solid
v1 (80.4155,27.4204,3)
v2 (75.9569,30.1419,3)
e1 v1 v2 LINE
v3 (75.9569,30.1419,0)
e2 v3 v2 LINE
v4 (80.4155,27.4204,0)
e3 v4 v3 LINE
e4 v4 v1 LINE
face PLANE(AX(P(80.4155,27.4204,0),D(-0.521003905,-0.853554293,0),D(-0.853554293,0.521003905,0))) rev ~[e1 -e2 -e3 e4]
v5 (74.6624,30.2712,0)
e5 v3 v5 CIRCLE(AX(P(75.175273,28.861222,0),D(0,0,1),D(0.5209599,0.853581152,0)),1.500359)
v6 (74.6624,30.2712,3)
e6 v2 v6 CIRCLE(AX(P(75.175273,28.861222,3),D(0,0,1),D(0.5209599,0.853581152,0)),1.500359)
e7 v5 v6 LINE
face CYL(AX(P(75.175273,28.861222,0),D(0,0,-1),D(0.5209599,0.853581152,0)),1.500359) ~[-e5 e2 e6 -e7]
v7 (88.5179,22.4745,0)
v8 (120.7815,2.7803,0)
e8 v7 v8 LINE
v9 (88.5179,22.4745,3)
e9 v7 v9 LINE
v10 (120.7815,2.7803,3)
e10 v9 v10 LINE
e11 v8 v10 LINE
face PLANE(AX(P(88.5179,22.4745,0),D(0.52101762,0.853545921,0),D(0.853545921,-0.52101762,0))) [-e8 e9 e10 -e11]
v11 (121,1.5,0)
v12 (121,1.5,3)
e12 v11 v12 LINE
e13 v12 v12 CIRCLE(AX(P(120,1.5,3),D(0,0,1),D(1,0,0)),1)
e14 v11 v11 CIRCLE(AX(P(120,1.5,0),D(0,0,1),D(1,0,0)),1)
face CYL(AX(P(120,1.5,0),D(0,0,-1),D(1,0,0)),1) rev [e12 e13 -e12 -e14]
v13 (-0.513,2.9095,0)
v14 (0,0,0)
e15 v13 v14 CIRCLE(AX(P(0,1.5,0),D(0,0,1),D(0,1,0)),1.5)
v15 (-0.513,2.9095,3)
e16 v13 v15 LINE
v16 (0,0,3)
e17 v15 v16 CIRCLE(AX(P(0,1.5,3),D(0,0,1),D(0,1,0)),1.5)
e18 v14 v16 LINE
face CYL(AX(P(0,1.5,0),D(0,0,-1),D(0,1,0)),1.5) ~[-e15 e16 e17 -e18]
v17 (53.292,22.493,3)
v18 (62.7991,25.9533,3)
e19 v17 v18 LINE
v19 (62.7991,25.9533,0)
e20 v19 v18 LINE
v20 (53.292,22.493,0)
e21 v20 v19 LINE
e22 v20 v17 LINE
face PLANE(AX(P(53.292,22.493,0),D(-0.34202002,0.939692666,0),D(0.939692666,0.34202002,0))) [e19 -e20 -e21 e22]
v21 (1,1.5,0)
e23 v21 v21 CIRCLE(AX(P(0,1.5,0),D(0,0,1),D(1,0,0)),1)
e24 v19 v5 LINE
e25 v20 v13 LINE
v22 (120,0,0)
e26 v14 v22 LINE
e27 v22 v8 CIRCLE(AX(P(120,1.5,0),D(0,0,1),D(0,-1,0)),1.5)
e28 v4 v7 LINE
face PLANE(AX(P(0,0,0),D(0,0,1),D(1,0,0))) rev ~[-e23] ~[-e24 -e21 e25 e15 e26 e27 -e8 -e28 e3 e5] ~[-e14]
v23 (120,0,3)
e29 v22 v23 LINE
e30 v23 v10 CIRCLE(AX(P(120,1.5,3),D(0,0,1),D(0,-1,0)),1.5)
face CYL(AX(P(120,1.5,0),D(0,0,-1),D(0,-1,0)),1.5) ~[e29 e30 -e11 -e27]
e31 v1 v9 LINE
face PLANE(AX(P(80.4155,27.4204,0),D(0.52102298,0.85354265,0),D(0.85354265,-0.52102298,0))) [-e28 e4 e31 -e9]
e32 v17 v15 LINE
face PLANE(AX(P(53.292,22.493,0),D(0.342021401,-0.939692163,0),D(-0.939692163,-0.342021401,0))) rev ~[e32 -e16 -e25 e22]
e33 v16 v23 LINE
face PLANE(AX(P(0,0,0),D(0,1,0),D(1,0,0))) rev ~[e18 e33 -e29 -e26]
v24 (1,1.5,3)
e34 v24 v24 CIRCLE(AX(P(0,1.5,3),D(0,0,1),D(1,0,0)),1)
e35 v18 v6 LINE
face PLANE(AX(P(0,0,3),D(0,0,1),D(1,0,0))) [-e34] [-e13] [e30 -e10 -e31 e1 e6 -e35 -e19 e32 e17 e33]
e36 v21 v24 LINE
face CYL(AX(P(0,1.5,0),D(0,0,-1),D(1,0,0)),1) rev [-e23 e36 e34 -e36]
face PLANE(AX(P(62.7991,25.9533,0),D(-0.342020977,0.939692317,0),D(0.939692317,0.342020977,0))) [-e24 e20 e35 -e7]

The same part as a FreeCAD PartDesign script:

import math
import FreeCAD as App
import Part
import Sketcher

V = App.Vector
Q = App.Units.Quantity

doc = App.newDocument("Part")
body = doc.addObject("PartDesign::Body", "Body")

# Sketch on XY plane
sketch1 = body.newObject("Sketcher::SketchObject", "Sketch")
sketch1.AttachmentSupport = (doc.getObject("XY_Plane"), [""])
sketch1.MapMode = "FlatFace"
sketch1.addGeometry([
    Part.ArcOfCircle(Part.Circle(V(0, 1.5, 0), V(0, 0, 1), 1.5), math.radians(110), math.radians(270)),  # 0
    Part.LineSegment(V(0, 0, 0), V(120, 0, 0)),  # 1
    Part.ArcOfCircle(Part.Circle(V(120, 1.5, 0), V(0, 0, 1), 1.5), math.radians(-90), math.radians(59)),  # 2
    Part.LineSegment(V(120.8, 2.8, 0), V(88.5, 22.5, 0)),  # 3
    Part.LineSegment(V(88.5, 22.5, 0), V(80.4, 27.4, 0)),  # 4
    Part.LineSegment(V(80.4, 27.4, 0), V(76, 30.1, 0)),  # 5
    Part.ArcOfCircle(Part.Circle(V(75.2, 28.9, 0), V(0, 0, 1), 1.5), math.radians(59), math.radians(110)),  # 6
    Part.LineSegment(V(74.7, 30.3, 0), V(62.8, 26, 0)),  # 7
    Part.LineSegment(V(62.8, 26, 0), V(53.3, 22.5, 0)),  # 8
    Part.LineSegment(V(53.3, 22.5, 0), V(-0.5, 2.9, 0)),  # 9
    Part.Circle(V(0, 1.5, 0), V(0, 0, 1), 1),  # 10
    Part.Circle(V(120, 1.5, 0), V(0, 0, 1), 1),  # 11
], False)
sketch1.addConstraint([
    Sketcher.Constraint("Tangent", 0, 2, 1, 1),
    Sketcher.Constraint("Tangent", 1, 2, 2, 1),
    Sketcher.Constraint("Tangent", 2, 2, 3, 1),
    Sketcher.Constraint("Coincident", 3, 2, 4, 1),
    Sketcher.Constraint("Coincident", 4, 2, 5, 1),
    Sketcher.Constraint("Tangent", 5, 2, 6, 1),
    Sketcher.Constraint("Tangent", 6, 2, 7, 1),
    Sketcher.Constraint("Coincident", 7, 2, 8, 1),
    Sketcher.Constraint("Coincident", 8, 2, 9, 1),
    Sketcher.Constraint("Tangent", 9, 2, 0, 1),
    Sketcher.Constraint("Horizontal", 1),
    Sketcher.Constraint("Coincident", 0, 2, -1, 1),
    Sketcher.Constraint("Coincident", 10, 3, 0, 3),
    Sketcher.Constraint("Coincident", 11, 3, 2, 3),
    Sketcher.Constraint("Equal", 0, 2),
    Sketcher.Constraint("Equal", 2, 6),
    Sketcher.Constraint("Equal", 10, 11),
    Sketcher.Constraint("Parallel", 3, 4),
    Sketcher.Constraint("Parallel", 4, 5),
    Sketcher.Constraint("Parallel", 7, 8),
    Sketcher.Constraint("Parallel", 8, 9),
    Sketcher.Constraint("Diameter", 10, 2.0),
    Sketcher.Constraint("Radius", 0, 1.5),
    Sketcher.Constraint("DistanceX", 1, 1, 1, 2, 120.0),
    Sketcher.Constraint("Angle", 7, Q("-160 deg")),
    Sketcher.Constraint("Angle", 3, Q("148.5995 deg")),
    Sketcher.Constraint("DistanceX", 6, 3, 4, 2, 5.24),
    Sketcher.Constraint("Distance", 9, 57.258),
    Sketcher.Constraint("DistanceX", -1, 1, 3, 2, 88.518),
    Sketcher.Constraint("DistanceX", -1, 1, 7, 2, 62.799),
])
pad1 = body.newObject("PartDesign::Pad", "Pad")
pad1.Profile = sketch1
pad1.Length = 3

doc.recompute()
